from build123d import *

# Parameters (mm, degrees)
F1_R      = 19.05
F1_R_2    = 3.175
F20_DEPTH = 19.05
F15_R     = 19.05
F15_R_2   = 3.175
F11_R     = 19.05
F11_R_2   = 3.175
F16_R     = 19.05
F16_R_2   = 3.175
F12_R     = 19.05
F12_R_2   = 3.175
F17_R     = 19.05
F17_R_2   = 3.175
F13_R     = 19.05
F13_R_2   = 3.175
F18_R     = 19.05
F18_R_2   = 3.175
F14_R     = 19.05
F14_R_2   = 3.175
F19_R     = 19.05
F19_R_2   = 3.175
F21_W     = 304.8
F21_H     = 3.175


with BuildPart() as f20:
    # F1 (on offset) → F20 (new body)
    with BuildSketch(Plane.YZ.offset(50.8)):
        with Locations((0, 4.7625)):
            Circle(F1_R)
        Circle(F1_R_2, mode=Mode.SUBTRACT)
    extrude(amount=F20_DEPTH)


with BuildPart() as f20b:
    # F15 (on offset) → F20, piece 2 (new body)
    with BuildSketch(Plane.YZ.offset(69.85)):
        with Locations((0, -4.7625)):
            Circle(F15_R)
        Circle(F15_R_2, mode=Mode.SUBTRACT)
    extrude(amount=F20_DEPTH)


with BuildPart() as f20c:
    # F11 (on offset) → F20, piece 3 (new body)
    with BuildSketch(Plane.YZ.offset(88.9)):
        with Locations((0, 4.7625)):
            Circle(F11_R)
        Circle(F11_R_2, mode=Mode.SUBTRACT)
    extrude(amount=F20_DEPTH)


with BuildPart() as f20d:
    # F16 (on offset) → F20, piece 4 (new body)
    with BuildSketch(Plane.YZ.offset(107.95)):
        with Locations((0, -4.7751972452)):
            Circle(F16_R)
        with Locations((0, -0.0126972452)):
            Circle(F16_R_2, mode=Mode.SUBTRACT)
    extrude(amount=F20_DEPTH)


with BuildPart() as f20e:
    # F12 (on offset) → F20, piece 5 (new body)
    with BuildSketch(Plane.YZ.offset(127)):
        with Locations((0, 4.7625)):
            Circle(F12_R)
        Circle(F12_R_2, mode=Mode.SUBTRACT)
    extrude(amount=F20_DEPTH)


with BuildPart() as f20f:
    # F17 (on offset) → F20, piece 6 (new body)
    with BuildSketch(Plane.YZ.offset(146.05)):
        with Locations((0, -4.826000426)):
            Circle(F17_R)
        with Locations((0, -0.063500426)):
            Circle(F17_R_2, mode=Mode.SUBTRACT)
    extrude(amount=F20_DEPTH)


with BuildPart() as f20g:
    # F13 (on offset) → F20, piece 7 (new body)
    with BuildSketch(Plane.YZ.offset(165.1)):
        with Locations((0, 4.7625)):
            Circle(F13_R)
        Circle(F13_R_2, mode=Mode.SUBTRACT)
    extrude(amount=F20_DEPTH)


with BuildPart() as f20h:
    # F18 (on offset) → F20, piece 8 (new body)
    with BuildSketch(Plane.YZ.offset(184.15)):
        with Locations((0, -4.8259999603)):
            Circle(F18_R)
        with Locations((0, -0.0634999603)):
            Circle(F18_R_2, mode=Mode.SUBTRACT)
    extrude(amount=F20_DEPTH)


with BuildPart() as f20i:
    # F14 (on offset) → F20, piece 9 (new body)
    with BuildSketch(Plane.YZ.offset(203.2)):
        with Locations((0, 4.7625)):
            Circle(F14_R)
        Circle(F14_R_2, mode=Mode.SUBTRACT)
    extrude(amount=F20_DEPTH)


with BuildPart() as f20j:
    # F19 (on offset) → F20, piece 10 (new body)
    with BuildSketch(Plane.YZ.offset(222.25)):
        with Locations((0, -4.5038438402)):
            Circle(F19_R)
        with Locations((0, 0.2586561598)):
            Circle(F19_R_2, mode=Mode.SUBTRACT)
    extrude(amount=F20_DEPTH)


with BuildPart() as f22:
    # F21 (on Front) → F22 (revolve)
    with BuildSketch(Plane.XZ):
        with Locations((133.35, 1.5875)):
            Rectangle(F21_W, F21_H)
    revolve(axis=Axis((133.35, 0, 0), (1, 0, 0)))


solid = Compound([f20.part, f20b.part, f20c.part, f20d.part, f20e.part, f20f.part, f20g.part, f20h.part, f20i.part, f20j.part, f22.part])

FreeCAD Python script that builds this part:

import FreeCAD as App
import Part
import Sketcher
Q = App.Units.Quantity


def add_polygon(sketch, points):
    """Adds a closed chain of lines whose ends are joined by coincident constraints."""
    first, n = sketch.GeometryCount, len(points)
    for a, b in zip(points, points[1:] + points[:1]):
        sketch.addGeometry(Part.LineSegment(App.Vector(*a, 0), App.Vector(*b, 0)), False)
    for i in range(n):
        sketch.addConstraint(Sketcher.Constraint("Coincident", first + i, 2, first + (i + 1) % n, 1))

doc = App.newDocument("Part")
body = doc.addObject("PartDesign::Body", "Body")

sketch1 = body.newObject("Sketcher::SketchObject", "Sketch")
sketch1.AttachmentSupport = (doc.getObject("YZ_Plane"), [""])
sketch1.MapMode = "FlatFace"
sketch1.AttachmentOffset = App.Placement(App.Vector(0, 0, 2 * 25.4), App.Rotation())
sketch1.addGeometry([
    Part.Circle(App.Vector(0, 4.8, 0), App.Vector(0, 0, 1), 19.1),
    Part.Circle(App.Vector(0, 0, 0), App.Vector(0, 0, 1), 3.2),
], False)
sketch1.addConstraint([
    Sketcher.Constraint("Coincident", 1, 3, -1, 1),
    Sketcher.Constraint("PointOnObject", 0, 3, -2),
    Sketcher.Constraint("Diameter", 0, Q("1.5 in")),
    Sketcher.Constraint("Diameter", 1, Q("0.25 in")),
    Sketcher.Constraint("DistanceY", -1, 1, 0, 3, Q("0.1875 in")),
])
pad1 = body.newObject("PartDesign::Pad", "Pad")
pad1.Profile = sketch1
pad1.Length = Q("0.75 in")
body2 = doc.addObject("PartDesign::Body", "Body001")

sketch2 = body2.newObject("Sketcher::SketchObject", "Sketch001")
sketch2.AttachmentSupport = (doc.getObject("YZ_Plane001"), [""])
sketch2.MapMode = "FlatFace"
sketch2.AttachmentOffset = App.Placement(App.Vector(0, 0, 2.75 * 25.4), App.Rotation())
sketch2.addGeometry([
    Part.Circle(App.Vector(0, -4.8, 0), App.Vector(0, 0, 1), 19.1),
    Part.Circle(App.Vector(0, 0, 0), App.Vector(0, 0, 1), 3.2),
], False)
sketch2.addConstraint([
    Sketcher.Constraint("Coincident", 1, 3, -1, 1),
    Sketcher.Constraint("PointOnObject", 0, 3, -2),
    Sketcher.Constraint("Diameter", 0, Q("1.5 in")),
    Sketcher.Constraint("Diameter", 1, Q("0.25 in")),
    Sketcher.Constraint("DistanceY", 0, 3, -1, 1, Q("0.1875 in")),
])
pad2 = body2.newObject("PartDesign::Pad", "Pad001")
pad2.Profile = sketch2
pad2.Length = Q("0.75 in")
body3 = doc.addObject("PartDesign::Body", "Body002")

sketch3 = body3.newObject("Sketcher::SketchObject", "Sketch002")
sketch3.AttachmentSupport = (doc.getObject("YZ_Plane002"), [""])
sketch3.MapMode = "FlatFace"
sketch3.AttachmentOffset = App.Placement(App.Vector(0, 0, 3.5 * 25.4), App.Rotation())
sketch3.addGeometry([
    Part.Circle(App.Vector(0, 4.8, 0), App.Vector(0, 0, 1), 19.1),
    Part.Circle(App.Vector(0, 0, 0), App.Vector(0, 0, 1), 3.2),
], False)
sketch3.addConstraint([
    Sketcher.Constraint("Coincident", 1, 3, -1, 1),
    Sketcher.Constraint("PointOnObject", 0, 3, -2),
    Sketcher.Constraint("Diameter", 0, Q("1.5 in")),
    Sketcher.Constraint("Diameter", 1, Q("0.25 in")),
    Sketcher.Constraint("DistanceY", -1, 1, 0, 3, Q("0.1875 in")),
])
pad3 = body3.newObject("PartDesign::Pad", "Pad002")
pad3.Profile = sketch3
pad3.Length = Q("0.75 in")
body4 = doc.addObject("PartDesign::Body", "Body003")

sketch4 = body4.newObject("Sketcher::SketchObject", "Sketch003")
sketch4.AttachmentSupport = (doc.getObject("YZ_Plane003"), [""])
sketch4.MapMode = "FlatFace"
sketch4.AttachmentOffset = App.Placement(App.Vector(0, 0, 4.25 * 25.4), App.Rotation())
sketch4.addGeometry([
    Part.Circle(App.Vector(0, -4.8, 0), App.Vector(0, 0, 1), 19.1),
    Part.Circle(App.Vector(0, 0, 0), App.Vector(0, 0, 1), 3.2),
], False)
sketch4.addConstraint([
    Sketcher.Constraint("PointOnObject", 0, 3, -2),
    Sketcher.Constraint("PointOnObject", 1, 3, -2),
    Sketcher.Constraint("Diameter", 0, Q("1.5 in")),
    Sketcher.Constraint("Diameter", 1, Q("0.25 in")),
    Sketcher.Constraint("DistanceY", 0, 3, -1, 1, Q("0.1879999 in")),
    Sketcher.Constraint("DistanceY", 0, 3, 1, 3, Q("0.1875 in")),
])
pad4 = body4.newObject("PartDesign::Pad", "Pad003")
pad4.Profile = sketch4
pad4.Length = Q("0.75 in")
body5 = doc.addObject("PartDesign::Body", "Body004")

sketch5 = body5.newObject("Sketcher::SketchObject", "Sketch004")
sketch5.AttachmentSupport = (doc.getObject("YZ_Plane004"), [""])
sketch5.MapMode = "FlatFace"
sketch5.AttachmentOffset = App.Placement(App.Vector(0, 0, 5 * 25.4), App.Rotation())
sketch5.addGeometry([
    Part.Circle(App.Vector(0, 4.8, 0), App.Vector(0, 0, 1), 19.1),
    Part.Circle(App.Vector(0, 0, 0), App.Vector(0, 0, 1), 3.2),
], False)
sketch5.addConstraint([
    Sketcher.Constraint("Coincident", 1, 3, -1, 1),
    Sketcher.Constraint("PointOnObject", 0, 3, -2),
    Sketcher.Constraint("Diameter", 0, Q("1.5 in")),
    Sketcher.Constraint("Diameter", 1, Q("0.25 in")),
    Sketcher.Constraint("DistanceY", -1, 1, 0, 3, Q("0.1875 in")),
])
pad5 = body5.newObject("PartDesign::Pad", "Pad004")
pad5.Profile = sketch5
pad5.Length = Q("0.75 in")
body6 = doc.addObject("PartDesign::Body", "Body005")

sketch6 = body6.newObject("Sketcher::SketchObject", "Sketch005")
sketch6.AttachmentSupport = (doc.getObject("YZ_Plane005"), [""])
sketch6.MapMode = "FlatFace"
sketch6.AttachmentOffset = App.Placement(App.Vector(0, 0, 5.75 * 25.4), App.Rotation())
sketch6.addGeometry([
    Part.Circle(App.Vector(0, -4.8, 0), App.Vector(0, 0, 1), 19.1),
    Part.Circle(App.Vector(0, -0.1, 0), App.Vector(0, 0, 1), 3.2),
], False)
sketch6.addConstraint([
    Sketcher.Constraint("PointOnObject", 0, 3, -2),
    Sketcher.Constraint("PointOnObject", 1, 3, -2),
    Sketcher.Constraint("Diameter", 0, Q("1.5 in")),
    Sketcher.Constraint("Diameter", 1, Q("0.25 in")),
    Sketcher.Constraint("DistanceY", 0, 3, -1, 1, Q("0.19 in")),
    Sketcher.Constraint("DistanceY", 0, 3, 1, 3, Q("0.1875 in")),
])
pad6 = body6.newObject("PartDesign::Pad", "Pad005")
pad6.Profile = sketch6
pad6.Length = Q("0.75 in")
body7 = doc.addObject("PartDesign::Body", "Body006")

sketch7 = body7.newObject("Sketcher::SketchObject", "Sketch006")
sketch7.AttachmentSupport = (doc.getObject("YZ_Plane006"), [""])
sketch7.MapMode = "FlatFace"
sketch7.AttachmentOffset = App.Placement(App.Vector(0, 0, 6.5 * 25.4), App.Rotation())
sketch7.addGeometry([
    Part.Circle(App.Vector(0, 4.8, 0), App.Vector(0, 0, 1), 19.1),
    Part.Circle(App.Vector(0, 0, 0), App.Vector(0, 0, 1), 3.2),
], False)
sketch7.addConstraint([
    Sketcher.Constraint("Coincident", 1, 3, -1, 1),
    Sketcher.Constraint("PointOnObject", 0, 3, -2),
    Sketcher.Constraint("Diameter", 0, Q("1.5 in")),
    Sketcher.Constraint("Diameter", 1, Q("0.25 in")),
    Sketcher.Constraint("DistanceY", -1, 1, 0, 3, Q("0.1875 in")),
])
pad7 = body7.newObject("PartDesign::Pad", "Pad006")
pad7.Profile = sketch7
pad7.Length = Q("0.75 in")
body8 = doc.addObject("PartDesign::Body", "Body007")

sketch8 = body8.newObject("Sketcher::SketchObject", "Sketch007")
sketch8.AttachmentSupport = (doc.getObject("YZ_Plane007"), [""])
sketch8.MapMode = "FlatFace"
sketch8.AttachmentOffset = App.Placement(App.Vector(0, 0, 7.25 * 25.4), App.Rotation())
sketch8.addGeometry([
    Part.Circle(App.Vector(0, -4.8, 0), App.Vector(0, 0, 1), 19.1),
    Part.Circle(App.Vector(0, -0.1, 0), App.Vector(0, 0, 1), 3.2),
], False)
sketch8.addConstraint([
    Sketcher.Constraint("PointOnObject", 0, 3, -2),
    Sketcher.Constraint("PointOnObject", 1, 3, -2),
    Sketcher.Constraint("Diameter", 0, Q("1.5 in")),
    Sketcher.Constraint("Diameter", 1, Q("0.25 in")),
    Sketcher.Constraint("DistanceY", 0, 3, -1, 1, Q("0.19 in")),
    Sketcher.Constraint("DistanceY", 0, 3, 1, 3, Q("0.1875 in")),
])
pad8 = body8.newObject("PartDesign::Pad", "Pad007")
pad8.Profile = sketch8
pad8.Length = Q("0.75 in")
body9 = doc.addObject("PartDesign::Body", "Body008")

sketch9 = body9.newObject("Sketcher::SketchObject", "Sketch008")
sketch9.AttachmentSupport = (doc.getObject("YZ_Plane008"), [""])
sketch9.MapMode = "FlatFace"
sketch9.AttachmentOffset = App.Placement(App.Vector(0, 0, 8 * 25.4), App.Rotation())
sketch9.addGeometry([
    Part.Circle(App.Vector(0, 4.8, 0), App.Vector(0, 0, 1), 19.1),
    Part.Circle(App.Vector(0, 0, 0), App.Vector(0, 0, 1), 3.2),
], False)
sketch9.addConstraint([
    Sketcher.Constraint("Coincident", 1, 3, -1, 1),
    Sketcher.Constraint("PointOnObject", 0, 3, -2),
    Sketcher.Constraint("Diameter", 0, Q("1.5 in")),
    Sketcher.Constraint("Diameter", 1, Q("0.25 in")),
    Sketcher.Constraint("DistanceY", -1, 1, 0, 3, Q("0.1875 in")),
])
pad9 = body9.newObject("PartDesign::Pad", "Pad008")
pad9.Profile = sketch9
pad9.Length = Q("0.75 in")
body10 = doc.addObject("PartDesign::Body", "Body009")

sketch10 = body10.newObject("Sketcher::SketchObject", "Sketch009")
sketch10.AttachmentSupport = (doc.getObject("YZ_Plane009"), [""])
sketch10.MapMode = "FlatFace"
sketch10.AttachmentOffset = App.Placement(App.Vector(0, 0, 8.75 * 25.4), App.Rotation())
sketch10.addGeometry([
    Part.Circle(App.Vector(0, -4.5, 0), App.Vector(0, 0, 1), 19.1),
    Part.Circle(App.Vector(0, 0.3, 0), App.Vector(0, 0, 1), 3.2),
], False)
sketch10.addConstraint([
    Sketcher.Constraint("PointOnObject", 0, 3, -2),
    Sketcher.Constraint("PointOnObject", 1, 3, -2),
    Sketcher.Constraint("Diameter", 0, Q("1.5 in")),
    Sketcher.Constraint("Diameter", 1, Q("0.25 in")),
    Sketcher.Constraint("DistanceY", 0, 3, 1, 3, Q("0.1875 in")),
    Sketcher.Constraint("DistanceY", 0, 3, -1, 1, 4.503844),
])
pad10 = body10.newObject("PartDesign::Pad", "Pad009")
pad10.Profile = sketch10
pad10.Length = Q("0.75 in")
body11 = doc.addObject("PartDesign::Body", "Body010")

sketch11 = body11.newObject("Sketcher::SketchObject", "Sketch010")
sketch11.AttachmentSupport = (doc.getObject("XZ_Plane010"), [""])
sketch11.MapMode = "FlatFace"
add_polygon(sketch11, [(-19.1, 3.2), (-19.1, 0), (285.8, 0), (285.8, 3.2)])
sketch11.addConstraint([
    Sketcher.Constraint("Vertical", 0),
    Sketcher.Constraint("Horizontal", 1),
    Sketcher.Constraint("Vertical", 2),
    Sketcher.Constraint("Horizontal", 3),
    Sketcher.Constraint("PointOnObject", 0, 2, -1),
    Sketcher.Constraint("DistanceX", 1, 1, 1, 2, Q("12 in")),
    Sketcher.Constraint("DistanceY", 0, 2, 0, 1, Q("0.125 in")),
    Sketcher.Constraint("DistanceX", 0, 2, -1, 1, Q("0.75 in")),
])
revolution = body11.newObject("PartDesign::Revolution", "Revolution")
revolution.Profile = sketch11
revolution.ReferenceAxis = (sketch11, ["H_Axis"])
revolution.Angle = 360

doc.recompute()
